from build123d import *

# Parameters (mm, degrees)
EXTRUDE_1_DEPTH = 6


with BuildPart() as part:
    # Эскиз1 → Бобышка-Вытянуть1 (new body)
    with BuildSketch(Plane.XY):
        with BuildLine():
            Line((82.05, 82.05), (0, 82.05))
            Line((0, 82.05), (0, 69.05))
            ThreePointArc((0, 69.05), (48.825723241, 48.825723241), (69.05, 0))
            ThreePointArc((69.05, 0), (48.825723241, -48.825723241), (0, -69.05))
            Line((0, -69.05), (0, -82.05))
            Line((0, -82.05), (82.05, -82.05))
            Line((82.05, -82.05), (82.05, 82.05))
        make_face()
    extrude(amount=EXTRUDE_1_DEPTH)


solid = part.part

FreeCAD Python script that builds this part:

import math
import FreeCAD as App
import Part
import Sketcher

V = App.Vector
Q = App.Units.Quantity

doc = App.newDocument("Part")
params = doc.addObject("Spreadsheet::Sheet", "Params")
for row, (alias, value) in enumerate([
    ("sketch1_height", "13 mm"),
    ("sketch1_radius", "69.05 mm"),
    ("pad1_length", "6 mm"),
], start=1):
    params.set(f"A{row}", alias)
    params.set(f"B{row}", "=" + value)
    params.setAlias(f"B{row}", alias)

body = doc.addObject("PartDesign::Body", "Body")

# Sketch on XY plane
sketch1 = body.newObject("Sketcher::SketchObject", "Sketch")
sketch1.AttachmentSupport = (doc.getObject("XY_Plane"), [""])
sketch1.MapMode = "FlatFace"
sketch1.addGeometry([
    Part.LineSegment(V(82.05, 82.05, 0), V(0, 82.05, 0)),  # 0
    Part.LineSegment(V(0, 82.05, 0), V(0, 69.05, 0)),  # 1
    Part.ArcOfCircle(Part.Circle(V(0, 0, 0), V(0, 0, 1), 69.05), math.radians(0), math.radians(90)),  # 2
    Part.ArcOfCircle(Part.Circle(V(0, 0, 0), V(0, 0, 1), 69.05), math.radians(-90), math.radians(0)),  # 3
    Part.LineSegment(V(0, -69.05, 0), V(0, -82.05, 0)),  # 4
    Part.LineSegment(V(0, -82.05, 0), V(82.05, -82.05, 0)),  # 5
    Part.LineSegment(V(82.05, -82.05, 0), V(82.05, 82.05, 0)),  # 6
], False)
sketch1.addConstraint([
    Sketcher.Constraint("Coincident", 0, 2, 1, 1),
    Sketcher.Constraint("Coincident", 1, 2, 2, 2),
    Sketcher.Constraint("Tangent", 2, 1, 3, 2),
    Sketcher.Constraint("Coincident", 3, 1, 4, 1),
    Sketcher.Constraint("Coincident", 4, 2, 5, 1),
    Sketcher.Constraint("Coincident", 5, 2, 6, 1),
    Sketcher.Constraint("Coincident", 6, 2, 0, 1),
    Sketcher.Constraint("Horizontal", 0),
    Sketcher.Constraint("Vertical", 1),
    Sketcher.Constraint("Vertical", 4),
    Sketcher.Constraint("Horizontal", 5),
    Sketcher.Constraint("Vertical", 6),
    Sketcher.Constraint("Coincident", 2, 3, -1, 1),
    Sketcher.Constraint("Equal", 2, 3),
    Sketcher.Constraint("Symmetric", 0, 2, 4, 2, -1, 1),
    Sketcher.Constraint("PointOnObject", 0, 2, -2),
    Sketcher.Constraint("PointOnObject", 2, 1, -1),
    Sketcher.Constraint("DistanceY", 1, 2, 1, 1, Q("13 mm")),
    Sketcher.Constraint("Radius", 2, Q("69.05 mm")),
    Sketcher.Constraint("DistanceX", 2, 1, 5, 2, Q("13 mm")),
])
sketch1.setExpression("Constraints[17]", "Params.sketch1_height")
sketch1.setExpression("Constraints[18]", "Params.sketch1_radius")
pad1 = body.newObject("PartDesign::Pad", "Pad")
pad1.Profile = sketch1
pad1.setExpression("Length", "Params.pad1_length")

doc.recompute()
